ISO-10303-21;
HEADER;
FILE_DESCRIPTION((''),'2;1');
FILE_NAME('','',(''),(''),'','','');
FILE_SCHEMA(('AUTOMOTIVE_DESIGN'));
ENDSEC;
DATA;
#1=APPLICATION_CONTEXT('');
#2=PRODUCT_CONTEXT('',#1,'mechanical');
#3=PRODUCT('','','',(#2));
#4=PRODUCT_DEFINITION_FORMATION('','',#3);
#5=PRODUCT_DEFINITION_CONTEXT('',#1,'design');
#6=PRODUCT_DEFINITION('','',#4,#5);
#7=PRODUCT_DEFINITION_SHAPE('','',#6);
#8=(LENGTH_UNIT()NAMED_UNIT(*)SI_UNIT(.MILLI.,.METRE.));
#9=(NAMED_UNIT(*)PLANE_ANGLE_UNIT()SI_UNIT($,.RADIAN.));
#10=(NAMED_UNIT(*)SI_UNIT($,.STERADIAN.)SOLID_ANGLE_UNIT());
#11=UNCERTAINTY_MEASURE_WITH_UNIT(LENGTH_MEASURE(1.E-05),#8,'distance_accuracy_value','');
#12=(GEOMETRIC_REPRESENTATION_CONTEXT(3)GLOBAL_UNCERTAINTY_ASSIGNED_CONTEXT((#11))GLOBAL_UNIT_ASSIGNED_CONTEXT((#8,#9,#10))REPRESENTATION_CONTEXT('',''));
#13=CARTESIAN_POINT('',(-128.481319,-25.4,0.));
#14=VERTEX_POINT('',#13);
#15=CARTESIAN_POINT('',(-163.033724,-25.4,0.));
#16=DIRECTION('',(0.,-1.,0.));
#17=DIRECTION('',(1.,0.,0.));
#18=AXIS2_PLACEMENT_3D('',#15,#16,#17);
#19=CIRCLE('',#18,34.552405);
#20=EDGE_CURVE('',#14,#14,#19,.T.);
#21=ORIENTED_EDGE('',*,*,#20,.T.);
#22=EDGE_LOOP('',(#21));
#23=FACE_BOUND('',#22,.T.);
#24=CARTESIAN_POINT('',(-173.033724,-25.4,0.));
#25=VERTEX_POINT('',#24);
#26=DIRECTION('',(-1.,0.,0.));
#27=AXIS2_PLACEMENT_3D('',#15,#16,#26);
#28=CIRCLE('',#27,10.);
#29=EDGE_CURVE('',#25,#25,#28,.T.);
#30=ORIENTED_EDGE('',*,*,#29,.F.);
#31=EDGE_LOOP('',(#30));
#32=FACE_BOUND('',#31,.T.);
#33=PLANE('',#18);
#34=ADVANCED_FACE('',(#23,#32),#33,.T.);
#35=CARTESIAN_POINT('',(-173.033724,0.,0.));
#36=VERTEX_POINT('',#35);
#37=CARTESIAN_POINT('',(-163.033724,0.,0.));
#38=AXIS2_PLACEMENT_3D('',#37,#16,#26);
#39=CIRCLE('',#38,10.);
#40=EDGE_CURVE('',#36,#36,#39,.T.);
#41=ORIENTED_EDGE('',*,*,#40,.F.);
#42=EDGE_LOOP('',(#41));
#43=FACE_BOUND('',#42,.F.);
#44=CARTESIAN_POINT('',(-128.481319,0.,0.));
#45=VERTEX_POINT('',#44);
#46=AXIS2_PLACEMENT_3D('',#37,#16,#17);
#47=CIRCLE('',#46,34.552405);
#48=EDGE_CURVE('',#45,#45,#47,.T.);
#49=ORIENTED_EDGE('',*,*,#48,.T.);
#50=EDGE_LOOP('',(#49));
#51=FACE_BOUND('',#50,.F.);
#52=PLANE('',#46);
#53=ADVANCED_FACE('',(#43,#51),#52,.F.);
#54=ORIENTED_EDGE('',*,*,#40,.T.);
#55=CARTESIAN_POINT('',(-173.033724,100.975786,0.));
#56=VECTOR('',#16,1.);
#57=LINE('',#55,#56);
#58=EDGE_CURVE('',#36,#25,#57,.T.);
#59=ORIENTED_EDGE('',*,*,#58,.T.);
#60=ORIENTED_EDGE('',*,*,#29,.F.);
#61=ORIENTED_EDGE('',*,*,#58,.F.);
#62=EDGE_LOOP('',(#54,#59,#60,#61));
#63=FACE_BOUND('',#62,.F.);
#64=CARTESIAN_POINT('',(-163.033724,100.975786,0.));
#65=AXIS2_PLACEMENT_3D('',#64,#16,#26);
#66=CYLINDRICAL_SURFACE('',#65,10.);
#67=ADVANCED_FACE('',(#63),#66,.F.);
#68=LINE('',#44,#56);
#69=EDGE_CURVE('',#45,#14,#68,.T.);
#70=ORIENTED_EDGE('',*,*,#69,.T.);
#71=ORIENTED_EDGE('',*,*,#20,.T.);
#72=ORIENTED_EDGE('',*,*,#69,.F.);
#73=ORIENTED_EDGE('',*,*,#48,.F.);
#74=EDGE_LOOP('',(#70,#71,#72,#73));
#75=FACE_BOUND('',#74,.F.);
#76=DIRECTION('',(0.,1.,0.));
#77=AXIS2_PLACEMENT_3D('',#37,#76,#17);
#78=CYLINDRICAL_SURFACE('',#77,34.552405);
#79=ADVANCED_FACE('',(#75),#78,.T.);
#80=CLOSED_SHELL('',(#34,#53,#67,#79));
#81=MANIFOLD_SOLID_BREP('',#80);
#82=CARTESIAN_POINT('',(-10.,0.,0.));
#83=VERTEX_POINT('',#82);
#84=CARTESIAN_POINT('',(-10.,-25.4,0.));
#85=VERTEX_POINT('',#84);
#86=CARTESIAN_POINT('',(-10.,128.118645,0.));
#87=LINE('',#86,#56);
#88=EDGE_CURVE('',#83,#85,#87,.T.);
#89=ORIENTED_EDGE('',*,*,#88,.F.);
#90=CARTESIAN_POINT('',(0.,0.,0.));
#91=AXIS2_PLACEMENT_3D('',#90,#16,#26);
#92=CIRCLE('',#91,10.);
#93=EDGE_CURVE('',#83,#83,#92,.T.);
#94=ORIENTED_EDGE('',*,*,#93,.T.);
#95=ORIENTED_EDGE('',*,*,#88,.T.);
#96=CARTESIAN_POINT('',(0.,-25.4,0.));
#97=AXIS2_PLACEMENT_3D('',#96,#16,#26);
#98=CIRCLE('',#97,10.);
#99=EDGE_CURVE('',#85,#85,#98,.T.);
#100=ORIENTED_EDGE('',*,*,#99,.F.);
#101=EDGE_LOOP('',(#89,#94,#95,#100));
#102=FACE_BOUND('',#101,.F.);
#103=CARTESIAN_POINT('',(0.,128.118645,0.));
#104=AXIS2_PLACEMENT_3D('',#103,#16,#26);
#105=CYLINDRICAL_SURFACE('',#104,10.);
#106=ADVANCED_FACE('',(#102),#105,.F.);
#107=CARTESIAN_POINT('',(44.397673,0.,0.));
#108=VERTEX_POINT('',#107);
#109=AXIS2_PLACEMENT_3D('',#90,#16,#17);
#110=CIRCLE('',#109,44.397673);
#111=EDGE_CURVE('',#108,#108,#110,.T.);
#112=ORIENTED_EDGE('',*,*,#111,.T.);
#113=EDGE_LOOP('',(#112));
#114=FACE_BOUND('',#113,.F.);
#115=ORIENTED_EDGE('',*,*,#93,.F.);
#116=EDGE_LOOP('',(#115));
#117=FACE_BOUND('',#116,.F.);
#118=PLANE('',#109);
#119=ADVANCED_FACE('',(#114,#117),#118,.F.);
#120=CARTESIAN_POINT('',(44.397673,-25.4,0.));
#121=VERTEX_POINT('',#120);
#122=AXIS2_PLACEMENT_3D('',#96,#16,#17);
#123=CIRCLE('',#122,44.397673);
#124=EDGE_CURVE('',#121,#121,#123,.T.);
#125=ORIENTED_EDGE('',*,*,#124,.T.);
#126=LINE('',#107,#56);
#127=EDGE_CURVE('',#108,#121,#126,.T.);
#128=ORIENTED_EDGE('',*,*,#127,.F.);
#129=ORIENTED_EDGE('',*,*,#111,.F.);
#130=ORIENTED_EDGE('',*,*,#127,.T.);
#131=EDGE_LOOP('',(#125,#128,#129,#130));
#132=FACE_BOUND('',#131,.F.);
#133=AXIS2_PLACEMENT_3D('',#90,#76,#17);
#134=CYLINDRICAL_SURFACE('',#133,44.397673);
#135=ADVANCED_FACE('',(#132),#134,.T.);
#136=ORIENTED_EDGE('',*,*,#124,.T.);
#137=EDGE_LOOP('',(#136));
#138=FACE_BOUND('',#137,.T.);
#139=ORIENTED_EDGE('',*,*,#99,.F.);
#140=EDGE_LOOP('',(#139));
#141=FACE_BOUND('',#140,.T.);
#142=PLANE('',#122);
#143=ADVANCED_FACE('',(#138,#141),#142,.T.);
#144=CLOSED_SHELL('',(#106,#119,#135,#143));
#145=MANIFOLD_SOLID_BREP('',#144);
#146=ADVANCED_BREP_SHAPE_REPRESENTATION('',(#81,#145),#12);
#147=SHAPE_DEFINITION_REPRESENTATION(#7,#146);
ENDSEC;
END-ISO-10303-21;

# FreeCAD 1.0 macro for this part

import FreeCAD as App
import Part
import Sketcher
from FreeCAD import Vector
Q = App.Units.Quantity

doc = App.newDocument("Part")
body = doc.addObject("PartDesign::Body", "Body")

sketch1 = doc.addObject("Sketcher::SketchObject", "Sketch")
body.addObject(sketch1)
sketch1.AttachmentSupport = (doc.XZ_Plane, [""])
sketch1.MapMode = "FlatFace"
sketch1.addGeometry(Part.Circle(Vector(0, 0, 0), Vector(0, 0, 1), 44), False)
sketch1.addConstraint([
    Sketcher.Constraint("Coincident", 0, 3, -1, 1),
    Sketcher.Constraint("Diameter", 0, Q("88.795347 mm")),
])
pad1 = doc.addObject("PartDesign::Pad", "Pad")
body.addObject(pad1)
pad1.Profile = sketch1
pad1.Length = 25.4

sketch2 = doc.addObject("Sketcher::SketchObject", "Sketch001")
body.addObject(sketch2)
sketch2.AttachmentSupport = (doc.XZ_Plane, [""])
sketch2.MapMode = "FlatFace"
sketch2.addGeometry(Part.Circle(Vector(0, 0, 0), Vector(0, 0, 1), 10), False)
sketch2.addConstraint([
    Sketcher.Constraint("Coincident", 0, 3, -1, 1),
    Sketcher.Constraint("Diameter", 0, Q("20 mm")),
])
doc.recompute()
hole = doc.addObject("PartDesign::Hole", "Hole")
body.addObject(hole)
hole.Profile = sketch2
hole.ThreadType = "None"
hole.Diameter = 20
hole.DepthType = "ThroughAll"
hole.Reversed = True
body2 = doc.addObject("PartDesign::Body", "Body001")

sketch3 = doc.addObject("Sketcher::SketchObject", "Sketch002")
body2.addObject(sketch3)
sketch3.AttachmentSupport = (doc.getObject("XZ_Plane001"), [""])
sketch3.MapMode = "FlatFace"
sketch3.addGeometry(Part.Circle(Vector(-163, 0, 0), Vector(0, 0, 1), 35), False)
sketch3.addConstraint([
    Sketcher.Constraint("PointOnObject", 0, 3, -1),
    Sketcher.Constraint("Diameter", 0, Q("69.104809 mm")),
    Sketcher.Constraint("DistanceX", 0, 3, -1, 1, Q("163.033724 mm")),
])
pad2 = doc.addObject("PartDesign::Pad", "Pad001")
body2.addObject(pad2)
pad2.Profile = sketch3
pad2.Length = 25.4

sketch4 = doc.addObject("Sketcher::SketchObject", "Sketch003")
body2.addObject(sketch4)
sketch4.AttachmentSupport = (doc.getObject("XZ_Plane001"), [""])
sketch4.MapMode = "FlatFace"
sketch4.addGeometry(Part.Circle(Vector(-163, 0, 0), Vector(0, 0, 1), 10), False)
sketch4.addConstraint([
    Sketcher.Constraint("PointOnObject", 0, 3, -1),
    Sketcher.Constraint("Diameter", 0, Q("20 mm")),
    Sketcher.Constraint("DistanceX", 0, 3, -1, 1, Q("163.033724 mm")),
])
doc.recompute()
hole2 = doc.addObject("PartDesign::Hole", "Hole001")
body2.addObject(hole2)
hole2.Profile = sketch4
hole2.ThreadType = "None"
hole2.Diameter = 20
hole2.DepthType = "ThroughAll"
hole2.Reversed = True

doc.recompute()
